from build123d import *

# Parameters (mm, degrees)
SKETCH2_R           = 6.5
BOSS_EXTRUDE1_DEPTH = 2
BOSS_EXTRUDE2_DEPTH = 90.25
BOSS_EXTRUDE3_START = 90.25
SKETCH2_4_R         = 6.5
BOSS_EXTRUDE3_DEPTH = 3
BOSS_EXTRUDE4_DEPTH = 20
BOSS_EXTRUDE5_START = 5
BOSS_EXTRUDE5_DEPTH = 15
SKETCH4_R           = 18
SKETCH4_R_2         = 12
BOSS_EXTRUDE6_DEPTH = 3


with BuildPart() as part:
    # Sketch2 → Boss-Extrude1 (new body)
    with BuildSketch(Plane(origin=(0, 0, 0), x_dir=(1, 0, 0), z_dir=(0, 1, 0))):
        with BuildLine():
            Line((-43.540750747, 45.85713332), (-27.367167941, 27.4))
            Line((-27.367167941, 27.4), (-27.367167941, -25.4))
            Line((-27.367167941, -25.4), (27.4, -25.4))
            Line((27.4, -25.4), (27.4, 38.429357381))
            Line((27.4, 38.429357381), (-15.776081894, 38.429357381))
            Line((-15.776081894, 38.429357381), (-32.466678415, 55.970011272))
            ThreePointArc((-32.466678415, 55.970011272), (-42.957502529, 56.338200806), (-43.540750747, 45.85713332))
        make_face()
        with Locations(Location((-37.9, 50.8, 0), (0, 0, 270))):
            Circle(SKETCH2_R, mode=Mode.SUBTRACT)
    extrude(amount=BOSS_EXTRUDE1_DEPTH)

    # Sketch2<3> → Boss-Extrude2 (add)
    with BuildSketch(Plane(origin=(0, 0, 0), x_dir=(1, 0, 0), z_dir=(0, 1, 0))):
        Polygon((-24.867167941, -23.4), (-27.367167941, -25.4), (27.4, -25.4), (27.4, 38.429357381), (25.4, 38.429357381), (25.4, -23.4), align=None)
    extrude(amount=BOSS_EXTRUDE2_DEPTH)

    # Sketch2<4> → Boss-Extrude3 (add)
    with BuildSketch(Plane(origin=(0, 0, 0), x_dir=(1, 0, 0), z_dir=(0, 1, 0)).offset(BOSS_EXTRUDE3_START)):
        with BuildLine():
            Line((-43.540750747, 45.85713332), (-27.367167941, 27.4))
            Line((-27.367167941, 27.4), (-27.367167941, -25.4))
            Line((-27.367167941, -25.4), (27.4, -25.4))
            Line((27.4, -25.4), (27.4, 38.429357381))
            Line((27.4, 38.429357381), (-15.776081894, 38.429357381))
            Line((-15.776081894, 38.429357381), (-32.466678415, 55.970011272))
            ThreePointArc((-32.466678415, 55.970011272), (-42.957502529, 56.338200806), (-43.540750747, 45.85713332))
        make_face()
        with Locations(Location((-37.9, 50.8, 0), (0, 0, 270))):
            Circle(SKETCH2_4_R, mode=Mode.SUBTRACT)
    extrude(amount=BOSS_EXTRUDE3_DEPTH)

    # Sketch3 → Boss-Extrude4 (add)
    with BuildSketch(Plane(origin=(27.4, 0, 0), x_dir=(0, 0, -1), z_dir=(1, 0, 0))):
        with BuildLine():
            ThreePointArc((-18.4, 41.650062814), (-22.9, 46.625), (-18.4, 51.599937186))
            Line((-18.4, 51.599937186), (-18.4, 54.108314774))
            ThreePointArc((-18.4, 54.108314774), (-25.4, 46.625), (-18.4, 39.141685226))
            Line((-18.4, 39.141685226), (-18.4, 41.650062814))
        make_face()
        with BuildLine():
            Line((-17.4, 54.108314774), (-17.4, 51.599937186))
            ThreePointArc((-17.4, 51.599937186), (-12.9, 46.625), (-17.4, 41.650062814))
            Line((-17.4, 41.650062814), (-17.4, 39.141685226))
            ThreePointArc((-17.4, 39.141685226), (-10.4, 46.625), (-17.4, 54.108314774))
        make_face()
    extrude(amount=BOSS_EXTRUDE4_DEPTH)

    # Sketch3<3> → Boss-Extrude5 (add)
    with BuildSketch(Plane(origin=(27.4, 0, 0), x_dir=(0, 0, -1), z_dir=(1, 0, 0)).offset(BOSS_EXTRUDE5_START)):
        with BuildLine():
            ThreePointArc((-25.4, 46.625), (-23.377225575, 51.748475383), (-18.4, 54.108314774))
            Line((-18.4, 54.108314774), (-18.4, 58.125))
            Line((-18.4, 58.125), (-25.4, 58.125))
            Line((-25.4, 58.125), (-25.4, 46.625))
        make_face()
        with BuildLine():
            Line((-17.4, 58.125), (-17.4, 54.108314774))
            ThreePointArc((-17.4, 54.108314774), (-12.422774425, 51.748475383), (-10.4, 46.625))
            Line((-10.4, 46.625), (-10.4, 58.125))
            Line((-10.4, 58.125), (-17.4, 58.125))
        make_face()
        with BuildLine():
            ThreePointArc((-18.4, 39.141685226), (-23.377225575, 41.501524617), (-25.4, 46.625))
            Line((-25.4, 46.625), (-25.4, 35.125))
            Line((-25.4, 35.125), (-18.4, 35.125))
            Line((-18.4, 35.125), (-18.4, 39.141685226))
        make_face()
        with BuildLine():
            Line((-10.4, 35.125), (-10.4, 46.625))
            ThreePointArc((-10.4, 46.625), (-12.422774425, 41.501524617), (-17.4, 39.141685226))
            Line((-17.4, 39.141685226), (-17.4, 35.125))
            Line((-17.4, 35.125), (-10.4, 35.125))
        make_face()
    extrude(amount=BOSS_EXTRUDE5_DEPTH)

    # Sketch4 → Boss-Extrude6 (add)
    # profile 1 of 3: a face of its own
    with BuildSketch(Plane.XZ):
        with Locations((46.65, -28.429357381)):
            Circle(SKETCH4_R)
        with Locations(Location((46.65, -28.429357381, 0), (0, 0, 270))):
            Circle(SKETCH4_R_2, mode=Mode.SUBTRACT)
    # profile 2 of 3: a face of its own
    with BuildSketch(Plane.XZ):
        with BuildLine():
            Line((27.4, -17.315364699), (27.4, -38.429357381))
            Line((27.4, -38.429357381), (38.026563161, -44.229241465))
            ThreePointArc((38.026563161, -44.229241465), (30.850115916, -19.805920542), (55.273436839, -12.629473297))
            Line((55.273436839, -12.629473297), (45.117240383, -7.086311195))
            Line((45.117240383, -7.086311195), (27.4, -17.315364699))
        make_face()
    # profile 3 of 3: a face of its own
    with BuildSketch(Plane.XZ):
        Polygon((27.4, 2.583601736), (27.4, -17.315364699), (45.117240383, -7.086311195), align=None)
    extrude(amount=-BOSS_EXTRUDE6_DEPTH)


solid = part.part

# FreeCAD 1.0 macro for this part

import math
import FreeCAD as App
import Part
import Sketcher


def add_polygon(sketch, points):
    """Adds a closed chain of lines whose ends are joined by coincident constraints."""
    first, n = sketch.GeometryCount, len(points)
    for a, b in zip(points, points[1:] + points[:1]):
        sketch.addGeometry(Part.LineSegment(App.Vector(*a, 0), App.Vector(*b, 0)), False)
    for i in range(n):
        sketch.addConstraint(Sketcher.Constraint("Coincident", first + i, 2, first + (i + 1) % n, 1))

doc = App.newDocument("Part")
body = doc.addObject("PartDesign::Body", "Body")

# Sketch on XZ plane
sketch1 = body.newObject("Sketcher::SketchObject", "Sketch")
sketch1.AttachmentSupport = (doc.getObject("XZ_Plane"), [""])
sketch1.MapMode = "FlatFace"
sketch1.addGeometry(Part.LineSegment(App.Vector(-44, -46, 0), App.Vector(-27, -27, 0)), False)
sketch1.addGeometry(Part.LineSegment(App.Vector(-27, -27, 0), App.Vector(-27, 25, 0)), False)
sketch1.addGeometry(Part.LineSegment(App.Vector(-27, 25, 0), App.Vector(27, 25, 0)), False)
sketch1.addGeometry(Part.LineSegment(App.Vector(27, 25, 0), App.Vector(27, -38, 0)), False)
sketch1.addGeometry(Part.LineSegment(App.Vector(27, -38, 0), App.Vector(-16, -38, 0)), False)
sketch1.addGeometry(Part.LineSegment(App.Vector(-16, -38, 0), App.Vector(-32, -56, 0)), False)
sketch1.addGeometry(Part.ArcOfCircle(Part.Circle(App.Vector(-38, -51, 0), App.Vector(0, 0, 1), 8), math.radians(139), math.radians(316)), False)
sketch1.addGeometry(Part.Circle(App.Vector(-38, -51, 0), App.Vector(0, 0, 1), 6), False)
sketch1.addConstraint(Sketcher.Constraint("Coincident", 0, 2, 1, 1))
sketch1.addConstraint(Sketcher.Constraint("Coincident", 1, 2, 2, 1))
sketch1.addConstraint(Sketcher.Constraint("Coincident", 2, 2, 3, 1))
sketch1.addConstraint(Sketcher.Constraint("Coincident", 3, 2, 4, 1))
sketch1.addConstraint(Sketcher.Constraint("Coincident", 4, 2, 5, 1))
sketch1.addConstraint(Sketcher.Constraint("Tangent", 5, 2, 6, 2))
sketch1.addConstraint(Sketcher.Constraint("Tangent", 6, 1, 0, 1))
sketch1.addConstraint(Sketcher.Constraint("Vertical", 1))
sketch1.addConstraint(Sketcher.Constraint("Horizontal", 2))
sketch1.addConstraint(Sketcher.Constraint("Vertical", 3))
sketch1.addConstraint(Sketcher.Constraint("Horizontal", 4))
sketch1.addConstraint(Sketcher.Constraint("Coincident", 7, 3, 6, 3))
sketch1.addConstraint(Sketcher.Constraint("Diameter", 7, 13.0))
sketch1.addConstraint(Sketcher.Constraint("Radius", 6, 7.5))
sketch1.addConstraint(Sketcher.Constraint("DistanceY", 1, 1, 1, 2, 52.8))
sketch1.addConstraint(Sketcher.Constraint("DistanceX", 6, 3, -1, 1, 37.9))
sketch1.addConstraint(Sketcher.Constraint("DistanceY", 6, 3, -1, 1, 50.8))
sketch1.addConstraint(Sketcher.Constraint("DistanceY", 0, 2, -1, 1, 27.4))
sketch1.addConstraint(Sketcher.Constraint("DistanceX", -1, 1, 2, 2, 27.4))
sketch1.addConstraint(Sketcher.Constraint("DistanceX", 4, 2, 4, 1, 43.176082))
sketch1.addConstraint(Sketcher.Constraint("Distance", 5, 24.212611))
sketch1.addConstraint(Sketcher.Constraint("DistanceX", 2, 1, 2, 2, 54.767168))
pad1 = body.newObject("PartDesign::Pad", "Pad")
pad1.Profile = sketch1
pad1.Length = 2
pad1.Reversed = True

# Sketch on XZ plane
sketch2 = body.newObject("Sketcher::SketchObject", "Sketch001")
sketch2.AttachmentSupport = (doc.getObject("XZ_Plane"), [""])
sketch2.MapMode = "FlatFace"
add_polygon(sketch2, [(-24.9, 23.4), (-27.4, 25.4), (27.4, 25.4), (27.4, -38.4), (25.4, -38.4), (25.4, 23.4)])  # lines 0-5
sketch2.addConstraint(Sketcher.Constraint("Horizontal", 1))
sketch2.addConstraint(Sketcher.Constraint("Vertical", 2))
sketch2.addConstraint(Sketcher.Constraint("Horizontal", 3))
sketch2.addConstraint(Sketcher.Constraint("Vertical", 4))
sketch2.addConstraint(Sketcher.Constraint("Horizontal", 5))
sketch2.addConstraint(Sketcher.Constraint("DistanceX", 3, 2, 3, 1, 2.0))
sketch2.addConstraint(Sketcher.Constraint("DistanceY", 4, 2, 1, 2, 2.0))
sketch2.addConstraint(Sketcher.Constraint("DistanceY", -1, 1, 0, 2, 25.4))
sketch2.addConstraint(Sketcher.Constraint("DistanceX", -1, 1, 1, 2, 27.4))
sketch2.addConstraint(Sketcher.Constraint("DistanceX", 0, 2, 5, 2, 2.5))
sketch2.addConstraint(Sketcher.Constraint("DistanceX", 1, 1, 1, 2, 54.767168))
sketch2.addConstraint(Sketcher.Constraint("DistanceY", 2, 2, 2, 1, 63.829357))
pad2 = body.newObject("PartDesign::Pad", "Pad001")
pad2.Profile = sketch2
pad2.Length = 90.25
pad2.Reversed = True

# Sketch on XZ plane
sketch3 = body.newObject("Sketcher::SketchObject", "Sketch002")
sketch3.AttachmentSupport = (doc.getObject("XZ_Plane"), [""])
sketch3.MapMode = "FlatFace"
sketch3.AttachmentOffset = App.Placement(App.Vector(0, 0, -90.25), App.Rotation())
sketch3.addGeometry(Part.LineSegment(App.Vector(-44, -46, 0), App.Vector(-27, -27, 0)), False)
sketch3.addGeometry(Part.LineSegment(App.Vector(-27, -27, 0), App.Vector(-27, 25, 0)), False)
sketch3.addGeometry(Part.LineSegment(App.Vector(-27, 25, 0), App.Vector(27, 25, 0)), False)
sketch3.addGeometry(Part.LineSegment(App.Vector(27, 25, 0), App.Vector(27, -38, 0)), False)
sketch3.addGeometry(Part.LineSegment(App.Vector(27, -38, 0), App.Vector(-16, -38, 0)), False)
sketch3.addGeometry(Part.LineSegment(App.Vector(-16, -38, 0), App.Vector(-32, -56, 0)), False)
sketch3.addGeometry(Part.ArcOfCircle(Part.Circle(App.Vector(-38, -51, 0), App.Vector(0, 0, 1), 8), math.radians(139), math.radians(316)), False)
sketch3.addGeometry(Part.Circle(App.Vector(-38, -51, 0), App.Vector(0, 0, 1), 6), False)
sketch3.addConstraint(Sketcher.Constraint("Coincident", 0, 2, 1, 1))
sketch3.addConstraint(Sketcher.Constraint("Coincident", 1, 2, 2, 1))
sketch3.addConstraint(Sketcher.Constraint("Coincident", 2, 2, 3, 1))
sketch3.addConstraint(Sketcher.Constraint("Coincident", 3, 2, 4, 1))
sketch3.addConstraint(Sketcher.Constraint("Coincident", 4, 2, 5, 1))
sketch3.addConstraint(Sketcher.Constraint("Tangent", 5, 2, 6, 2))
sketch3.addConstraint(Sketcher.Constraint("Tangent", 6, 1, 0, 1))
sketch3.addConstraint(Sketcher.Constraint("Vertical", 1))
sketch3.addConstraint(Sketcher.Constraint("Horizontal", 2))
sketch3.addConstraint(Sketcher.Constraint("Vertical", 3))
sketch3.addConstraint(Sketcher.Constraint("Horizontal", 4))
sketch3.addConstraint(Sketcher.Constraint("Coincident", 7, 3, 6, 3))
sketch3.addConstraint(Sketcher.Constraint("Diameter", 7, 13.0))
sketch3.addConstraint(Sketcher.Constraint("Radius", 6, 7.5))
sketch3.addConstraint(Sketcher.Constraint("DistanceY", 1, 1, 1, 2, 52.8))
sketch3.addConstraint(Sketcher.Constraint("DistanceX", 6, 3, -1, 1, 37.9))
sketch3.addConstraint(Sketcher.Constraint("DistanceY", 6, 3, -1, 1, 50.8))
sketch3.addConstraint(Sketcher.Constraint("DistanceY", 0, 2, -1, 1, 27.4))
sketch3.addConstraint(Sketcher.Constraint("DistanceX", -1, 1, 2, 2, 27.4))
sketch3.addConstraint(Sketcher.Constraint("DistanceX", 4, 2, 4, 1, 43.176082))
sketch3.addConstraint(Sketcher.Constraint("Distance", 5, 24.212611))
sketch3.addConstraint(Sketcher.Constraint("DistanceX", 2, 1, 2, 2, 54.767168))
pad3 = body.newObject("PartDesign::Pad", "Pad002")
pad3.Profile = sketch3
pad3.Length = 3
pad3.Reversed = True

# Sketch on YZ plane
sketch4 = body.newObject("Sketcher::SketchObject", "Sketch003")
sketch4.AttachmentSupport = (doc.getObject("YZ_Plane"), [""])
sketch4.MapMode = "FlatFace"
sketch4.AttachmentOffset = App.Placement(App.Vector(0, 0, 27.4), App.Rotation())
sketch4.addGeometry(Part.ArcOfCircle(Part.Circle(App.Vector(46.6, 17.9, 0), App.Vector(0, 0, 1), 5), math.radians(6), math.radians(174)), False)
sketch4.addGeometry(Part.LineSegment(App.Vector(51.6, 18.4, 0), App.Vector(54.1, 18.4, 0)), False)
sketch4.addGeometry(Part.ArcOfCircle(Part.Circle(App.Vector(46.6, 17.9, 0), App.Vector(0, 0, 1), 7.5), math.radians(4), math.radians(176)), False)
sketch4.addGeometry(Part.LineSegment(App.Vector(39.1, 18.4, 0), App.Vector(41.7, 18.4, 0)), False)
sketch4.addGeometry(Part.LineSegment(App.Vector(54.1, 17.4, 0), App.Vector(51.6, 17.4, 0)), False)
sketch4.addGeometry(Part.ArcOfCircle(Part.Circle(App.Vector(46.6, 17.9, 0), App.Vector(0, 0, 1), 5), math.radians(-174), math.radians(-6)), False)
sketch4.addGeometry(Part.LineSegment(App.Vector(41.7, 17.4, 0), App.Vector(39.1, 17.4, 0)), False)
sketch4.addGeometry(Part.ArcOfCircle(Part.Circle(App.Vector(46.6, 17.9, 0), App.Vector(0, 0, 1), 7.5), math.radians(-176), math.radians(-4)), False)
sketch4.addConstraint(Sketcher.Constraint("Coincident", 0, 1, 1, 1))
sketch4.addConstraint(Sketcher.Constraint("Coincident", 1, 2, 2, 1))
sketch4.addConstraint(Sketcher.Constraint("Coincident", 2, 2, 3, 1))
sketch4.addConstraint(Sketcher.Constraint("Coincident", 3, 2, 0, 2))
sketch4.addConstraint(Sketcher.Constraint("Coincident", 4, 2, 5, 2))
sketch4.addConstraint(Sketcher.Constraint("Coincident", 5, 1, 6, 1))
sketch4.addConstraint(Sketcher.Constraint("Coincident", 6, 2, 7, 1))
sketch4.addConstraint(Sketcher.Constraint("Coincident", 7, 2, 4, 1))
sketch4.addConstraint(Sketcher.Constraint("Horizontal", 1))
sketch4.addConstraint(Sketcher.Constraint("Horizontal", 3))
sketch4.addConstraint(Sketcher.Constraint("Horizontal", 4))
sketch4.addConstraint(Sketcher.Constraint("Horizontal", 6))
sketch4.addConstraint(Sketcher.Constraint("Coincident", 2, 3, 0, 3))
sketch4.addConstraint(Sketcher.Constraint("Coincident", 5, 3, 0, 3))
sketch4.addConstraint(Sketcher.Constraint("Coincident", 7, 3, 0, 3))
sketch4.addConstraint(Sketcher.Constraint("Equal", 0, 5))
sketch4.addConstraint(Sketcher.Constraint("Equal", 2, 7))
sketch4.addConstraint(Sketcher.Constraint("Horizontal", 1, 2, 2, 2))
sketch4.addConstraint(Sketcher.Constraint("Horizontal", 4, 2, 5, 1))
sketch4.addConstraint(Sketcher.Constraint("Vertical", 0, 1, 4, 2))
sketch4.addConstraint(Sketcher.Constraint("Radius", 0, 5.0))
sketch4.addConstraint(Sketcher.Constraint("Radius", 2, 7.5))
sketch4.addConstraint(Sketcher.Constraint("DistanceY", 4, 2, 0, 1, 1.0))
sketch4.addConstraint(Sketcher.Constraint("DistanceY", -1, 1, 0, 3, 17.9))
sketch4.addConstraint(Sketcher.Constraint("DistanceX", -1, 1, 0, 3, 46.625))
pad4 = body.newObject("PartDesign::Pad", "Pad003")
pad4.Profile = sketch4
pad4.Length = 20

# Sketch on YZ plane
sketch5 = body.newObject("Sketcher::SketchObject", "Sketch004")
sketch5.AttachmentSupport = (doc.getObject("YZ_Plane"), [""])
sketch5.MapMode = "FlatFace"
sketch5.AttachmentOffset = App.Placement(App.Vector(0, 0, 32.4), App.Rotation())
sketch5.addGeometry(Part.ArcOfCircle(Part.Circle(App.Vector(46.6, 17.9, 0), App.Vector(0, 0, 1), 7.5), math.radians(4), math.radians(90)), False)
sketch5.addGeometry(Part.LineSegment(App.Vector(54.1, 18.4, 0), App.Vector(58.1, 18.4, 0)), False)
sketch5.addGeometry(Part.LineSegment(App.Vector(58.1, 18.4, 0), App.Vector(58.1, 25.4, 0)), False)
sketch5.addGeometry(Part.LineSegment(App.Vector(58.1, 25.4, 0), App.Vector(46.6, 25.4, 0)), False)
sketch5.addGeometry(Part.LineSegment(App.Vector(58.1, 17.4, 0), App.Vector(54.1, 17.4, 0)), False)
sketch5.addGeometry(Part.ArcOfCircle(Part.Circle(App.Vector(46.6, 17.9, 0), App.Vector(0, 0, 1), 7.5), math.radians(-90), math.radians(-4)), False)
sketch5.addGeometry(Part.LineSegment(App.Vector(46.6, 10.4, 0), App.Vector(58.1, 10.4, 0)), False)
sketch5.addGeometry(Part.LineSegment(App.Vector(58.1, 10.4, 0), App.Vector(58.1, 17.4, 0)), False)
sketch5.addGeometry(Part.ArcOfCircle(Part.Circle(App.Vector(46.6, 17.9, 0), App.Vector(0, 0, 1), 7.5), math.radians(90), math.radians(176)), False)
sketch5.addGeometry(Part.LineSegment(App.Vector(46.6, 25.4, 0), App.Vector(35.1, 25.4, 0)), False)
sketch5.addGeometry(Part.LineSegment(App.Vector(35.1, 25.4, 0), App.Vector(35.1, 18.4, 0)), False)
sketch5.addGeometry(Part.LineSegment(App.Vector(35.1, 18.4, 0), App.Vector(39.1, 18.4, 0)), False)
sketch5.addGeometry(Part.LineSegment(App.Vector(35.1, 10.4, 0), App.Vector(46.6, 10.4, 0)), False)
sketch5.addGeometry(Part.ArcOfCircle(Part.Circle(App.Vector(46.6, 17.9, 0), App.Vector(0, 0, 1), 7.5), math.radians(-176), math.radians(-90)), False)
sketch5.addGeometry(Part.LineSegment(App.Vector(39.1, 17.4, 0), App.Vector(35.1, 17.4, 0)), False)
sketch5.addGeometry(Part.LineSegment(App.Vector(35.1, 17.4, 0), App.Vector(35.1, 10.4, 0)), False)
sketch5.addConstraint(Sketcher.Constraint("Coincident", 0, 1, 1, 1))
sketch5.addConstraint(Sketcher.Constraint("Coincident", 1, 2, 2, 1))
sketch5.addConstraint(Sketcher.Constraint("Coincident", 2, 2, 3, 1))
sketch5.addConstraint(Sketcher.Constraint("Tangent", 3, 2, 0, 2))
sketch5.addConstraint(Sketcher.Constraint("Coincident", 4, 2, 5, 2))
sketch5.addConstraint(Sketcher.Constraint("Tangent", 5, 1, 6, 1))
sketch5.addConstraint(Sketcher.Constraint("Coincident", 6, 2, 7, 1))
sketch5.addConstraint(Sketcher.Constraint("Coincident", 7, 2, 4, 1))
sketch5.addConstraint(Sketcher.Constraint("Tangent", 8, 1, 9, 1))
sketch5.addConstraint(Sketcher.Constraint("Coincident", 9, 2, 10, 1))
sketch5.addConstraint(Sketcher.Constraint("Coincident", 10, 2, 11, 1))
sketch5.addConstraint(Sketcher.Constraint("Coincident", 11, 2, 8, 2))
sketch5.addConstraint(Sketcher.Constraint("Tangent", 12, 2, 13, 2))
sketch5.addConstraint(Sketcher.Constraint("Coincident", 13, 1, 14, 1))
sketch5.addConstraint(Sketcher.Constraint("Coincident", 14, 2, 15, 1))
sketch5.addConstraint(Sketcher.Constraint("Coincident", 15, 2, 12, 1))
sketch5.addConstraint(Sketcher.Constraint("Horizontal", 1))
sketch5.addConstraint(Sketcher.Constraint("Vertical", 2))
sketch5.addConstraint(Sketcher.Constraint("Horizontal", 3))
sketch5.addConstraint(Sketcher.Constraint("Horizontal", 4))
sketch5.addConstraint(Sketcher.Constraint("Horizontal", 6))
sketch5.addConstraint(Sketcher.Constraint("Vertical", 7))
sketch5.addConstraint(Sketcher.Constraint("Horizontal", 9))
sketch5.addConstraint(Sketcher.Constraint("Vertical", 10))
sketch5.addConstraint(Sketcher.Constraint("Horizontal", 11))
sketch5.addConstraint(Sketcher.Constraint("Horizontal", 12))
sketch5.addConstraint(Sketcher.Constraint("Horizontal", 14))
sketch5.addConstraint(Sketcher.Constraint("Vertical", 15))
sketch5.addConstraint(Sketcher.Constraint("Coincident", 5, 3, 0, 3))
sketch5.addConstraint(Sketcher.Constraint("Coincident", 8, 3, 0, 3))
sketch5.addConstraint(Sketcher.Constraint("Coincident", 13, 3, 0, 3))
sketch5.addConstraint(Sketcher.Constraint("Equal", 0, 5))
sketch5.addConstraint(Sketcher.Constraint("Equal", 5, 8))
sketch5.addConstraint(Sketcher.Constraint("Equal", 8, 13))
sketch5.addConstraint(Sketcher.Constraint("Horizontal", 1, 2, 10, 2))
sketch5.addConstraint(Sketcher.Constraint("Horizontal", 7, 2, 13, 1))
sketch5.addConstraint(Sketcher.Constraint("Vertical", 0, 1, 4, 2))
sketch5.addConstraint(Sketcher.Constraint("Vertical", 2, 2, 6, 2))
sketch5.addConstraint(Sketcher.Constraint("Vertical", 10, 2, 14, 2))
sketch5.addConstraint(Sketcher.Constraint("Equal", 6, 9))
sketch5.addConstraint(Sketcher.Constraint("Radius", 0, 7.5))
sketch5.addConstraint(Sketcher.Constraint("DistanceY", 2, 1, 2, 2, 7.0))
sketch5.addConstraint(Sketcher.Constraint("DistanceX", 3, 2, 3, 1, 11.5))
sketch5.addConstraint(Sketcher.Constraint("DistanceY", -1, 1, 0, 3, 17.9))
sketch5.addConstraint(Sketcher.Constraint("DistanceX", -1, 1, 0, 3, 46.625))
pad5 = body.newObject("PartDesign::Pad", "Pad004")
pad5.Profile = sketch5
pad5.Length = 15

# Sketch on XZ plane
sketch6 = body.newObject("Sketcher::SketchObject", "Sketch005")
sketch6.AttachmentSupport = (doc.getObject("XZ_Plane"), [""])
sketch6.MapMode = "FlatFace"
sketch6.addGeometry(Part.LineSegment(App.Vector(55, -13, 0), App.Vector(45, -7, 0)), False)
sketch6.addGeometry(Part.LineSegment(App.Vector(45, -7, 0), App.Vector(27, 3, 0)), False)
sketch6.addGeometry(Part.LineSegment(App.Vector(27, 3, 0), App.Vector(27, -38, 0)), False)
sketch6.addGeometry(Part.LineSegment(App.Vector(27, -38, 0), App.Vector(38, -44, 0)), False)
sketch6.addGeometry(Part.ArcOfCircle(Part.Circle(App.Vector(47, -28, 0), App.Vector(0, 0, 1), 18), math.radians(-119), math.radians(61)), False)
sketch6.addGeometry(Part.Circle(App.Vector(47, -28, 0), App.Vector(0, 0, 1), 12), False)
sketch6.addConstraint(Sketcher.Constraint("Coincident", 0, 2, 1, 1))
sketch6.addConstraint(Sketcher.Constraint("Coincident", 1, 2, 2, 1))
sketch6.addConstraint(Sketcher.Constraint("Coincident", 2, 2, 3, 1))
sketch6.addConstraint(Sketcher.Constraint("Tangent", 3, 2, 4, 1))
sketch6.addConstraint(Sketcher.Constraint("Tangent", 4, 2, 0, 1))
sketch6.addConstraint(Sketcher.Constraint("Vertical", 2))
sketch6.addConstraint(Sketcher.Constraint("Coincident", 5, 3, 4, 3))
sketch6.addConstraint(Sketcher.Constraint("Parallel", 0, 1))
sketch6.addConstraint(Sketcher.Constraint("Parallel", 1, 3))
sketch6.addConstraint(Sketcher.Constraint("Diameter", 5, 24.0))
sketch6.addConstraint(Sketcher.Constraint("Radius", 4, 18.0))
sketch6.addConstraint(Sketcher.Constraint("DistanceY", 2, 2, 4, 3, 10.0))
sketch6.addConstraint(Sketcher.Constraint("DistanceX", -1, 1, 1, 2, 27.4))
sketch6.addConstraint(Sketcher.Constraint("DistanceX", -1, 1, 4, 3, 46.65))
sketch6.addConstraint(Sketcher.Constraint("DistanceY", -1, 1, 1, 2, 2.583602))
sketch6.addConstraint(Sketcher.Constraint("DistanceX", -1, 1, 0, 2, 45.11724))
pad6 = body.newObject("PartDesign::Pad", "Pad005")
pad6.Profile = sketch6
pad6.Length = 3
pad6.Reversed = True

doc.recompute()
